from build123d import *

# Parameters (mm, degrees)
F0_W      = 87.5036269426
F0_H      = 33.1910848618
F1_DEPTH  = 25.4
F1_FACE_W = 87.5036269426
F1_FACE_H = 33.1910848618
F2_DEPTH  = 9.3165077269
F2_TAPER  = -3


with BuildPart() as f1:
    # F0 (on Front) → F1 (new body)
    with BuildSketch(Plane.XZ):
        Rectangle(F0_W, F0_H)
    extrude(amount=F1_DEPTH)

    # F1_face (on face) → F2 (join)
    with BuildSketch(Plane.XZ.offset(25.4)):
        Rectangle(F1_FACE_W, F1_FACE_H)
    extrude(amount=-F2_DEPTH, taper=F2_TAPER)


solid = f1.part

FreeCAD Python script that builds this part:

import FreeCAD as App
import Part
import Sketcher
from FreeCAD import Vector
Q = App.Units.Quantity


def add_polygon(sketch, points):
    """Adds a closed chain of lines whose ends are joined by coincident constraints."""
    first, n = sketch.GeometryCount, len(points)
    for a, b in zip(points, points[1:] + points[:1]):
        sketch.addGeometry(Part.LineSegment(App.Vector(*a, 0), App.Vector(*b, 0)), False)
    for i in range(n):
        sketch.addConstraint(Sketcher.Constraint("Coincident", first + i, 2, first + (i + 1) % n, 1))

doc = App.newDocument("Part")
body = doc.addObject("PartDesign::Body", "Body")

# Sketch on XZ plane
sketch1 = body.newObject("Sketcher::SketchObject", "Sketch")
sketch1.AttachmentSupport = (doc.getObject("XZ_Plane"), [""])
sketch1.MapMode = "FlatFace"
add_polygon(sketch1, [(-43.751813, 16.595542), (-43.751813, -16.595542), (43.751813, -16.595542), (43.751813, 16.595542)])  # lines 0-3
sketch1.addConstraint(Sketcher.Constraint("Vertical", 0))
sketch1.addConstraint(Sketcher.Constraint("Horizontal", 1))
sketch1.addConstraint(Sketcher.Constraint("Vertical", 2))
sketch1.addConstraint(Sketcher.Constraint("Horizontal", 3))
sketch1.addConstraint(Sketcher.Constraint("Symmetric", 0, 2, 2, 2, -1, 1))
sketch1.addConstraint(Sketcher.Constraint("DistanceX", 1, 1, 1, 2, 87.503627))
sketch1.addConstraint(Sketcher.Constraint("DistanceY", 0, 2, 0, 1, 33.191085))
pad1 = body.newObject("PartDesign::Pad", "Pad")
pad1.Profile = sketch1
pad1.Length = Q("1 in")

# Sketch on XZ plane
sketch2 = body.newObject("Sketcher::SketchObject", "Sketch001")
sketch2.AttachmentSupport = (doc.getObject("XZ_Plane"), [""])
sketch2.MapMode = "FlatFace"
sketch2.AttachmentOffset = App.Placement(Vector(0, 0, 1 * 25.4), App.Rotation())
add_polygon(sketch2, [(-43.751813, 16.595542), (-43.751813, -16.595542), (43.751813, -16.595542), (43.751813, 16.595542)])  # lines 0-3
sketch2.addConstraint(Sketcher.Constraint("Vertical", 0))
sketch2.addConstraint(Sketcher.Constraint("Horizontal", 1))
sketch2.addConstraint(Sketcher.Constraint("Vertical", 2))
sketch2.addConstraint(Sketcher.Constraint("Horizontal", 3))
sketch2.addConstraint(Sketcher.Constraint("Symmetric", 0, 2, 2, 2, -1, 1))
sketch2.addConstraint(Sketcher.Constraint("DistanceX", 1, 1, 1, 2, 87.503627))
sketch2.addConstraint(Sketcher.Constraint("DistanceY", 0, 2, 0, 1, 33.191085))
pad2 = body.newObject("PartDesign::Pad", "Pad001")
pad2.Profile = sketch2
pad2.Length = 9.316508
pad2.Reversed = True
pad2.TaperAngle = 3

doc.recompute()
